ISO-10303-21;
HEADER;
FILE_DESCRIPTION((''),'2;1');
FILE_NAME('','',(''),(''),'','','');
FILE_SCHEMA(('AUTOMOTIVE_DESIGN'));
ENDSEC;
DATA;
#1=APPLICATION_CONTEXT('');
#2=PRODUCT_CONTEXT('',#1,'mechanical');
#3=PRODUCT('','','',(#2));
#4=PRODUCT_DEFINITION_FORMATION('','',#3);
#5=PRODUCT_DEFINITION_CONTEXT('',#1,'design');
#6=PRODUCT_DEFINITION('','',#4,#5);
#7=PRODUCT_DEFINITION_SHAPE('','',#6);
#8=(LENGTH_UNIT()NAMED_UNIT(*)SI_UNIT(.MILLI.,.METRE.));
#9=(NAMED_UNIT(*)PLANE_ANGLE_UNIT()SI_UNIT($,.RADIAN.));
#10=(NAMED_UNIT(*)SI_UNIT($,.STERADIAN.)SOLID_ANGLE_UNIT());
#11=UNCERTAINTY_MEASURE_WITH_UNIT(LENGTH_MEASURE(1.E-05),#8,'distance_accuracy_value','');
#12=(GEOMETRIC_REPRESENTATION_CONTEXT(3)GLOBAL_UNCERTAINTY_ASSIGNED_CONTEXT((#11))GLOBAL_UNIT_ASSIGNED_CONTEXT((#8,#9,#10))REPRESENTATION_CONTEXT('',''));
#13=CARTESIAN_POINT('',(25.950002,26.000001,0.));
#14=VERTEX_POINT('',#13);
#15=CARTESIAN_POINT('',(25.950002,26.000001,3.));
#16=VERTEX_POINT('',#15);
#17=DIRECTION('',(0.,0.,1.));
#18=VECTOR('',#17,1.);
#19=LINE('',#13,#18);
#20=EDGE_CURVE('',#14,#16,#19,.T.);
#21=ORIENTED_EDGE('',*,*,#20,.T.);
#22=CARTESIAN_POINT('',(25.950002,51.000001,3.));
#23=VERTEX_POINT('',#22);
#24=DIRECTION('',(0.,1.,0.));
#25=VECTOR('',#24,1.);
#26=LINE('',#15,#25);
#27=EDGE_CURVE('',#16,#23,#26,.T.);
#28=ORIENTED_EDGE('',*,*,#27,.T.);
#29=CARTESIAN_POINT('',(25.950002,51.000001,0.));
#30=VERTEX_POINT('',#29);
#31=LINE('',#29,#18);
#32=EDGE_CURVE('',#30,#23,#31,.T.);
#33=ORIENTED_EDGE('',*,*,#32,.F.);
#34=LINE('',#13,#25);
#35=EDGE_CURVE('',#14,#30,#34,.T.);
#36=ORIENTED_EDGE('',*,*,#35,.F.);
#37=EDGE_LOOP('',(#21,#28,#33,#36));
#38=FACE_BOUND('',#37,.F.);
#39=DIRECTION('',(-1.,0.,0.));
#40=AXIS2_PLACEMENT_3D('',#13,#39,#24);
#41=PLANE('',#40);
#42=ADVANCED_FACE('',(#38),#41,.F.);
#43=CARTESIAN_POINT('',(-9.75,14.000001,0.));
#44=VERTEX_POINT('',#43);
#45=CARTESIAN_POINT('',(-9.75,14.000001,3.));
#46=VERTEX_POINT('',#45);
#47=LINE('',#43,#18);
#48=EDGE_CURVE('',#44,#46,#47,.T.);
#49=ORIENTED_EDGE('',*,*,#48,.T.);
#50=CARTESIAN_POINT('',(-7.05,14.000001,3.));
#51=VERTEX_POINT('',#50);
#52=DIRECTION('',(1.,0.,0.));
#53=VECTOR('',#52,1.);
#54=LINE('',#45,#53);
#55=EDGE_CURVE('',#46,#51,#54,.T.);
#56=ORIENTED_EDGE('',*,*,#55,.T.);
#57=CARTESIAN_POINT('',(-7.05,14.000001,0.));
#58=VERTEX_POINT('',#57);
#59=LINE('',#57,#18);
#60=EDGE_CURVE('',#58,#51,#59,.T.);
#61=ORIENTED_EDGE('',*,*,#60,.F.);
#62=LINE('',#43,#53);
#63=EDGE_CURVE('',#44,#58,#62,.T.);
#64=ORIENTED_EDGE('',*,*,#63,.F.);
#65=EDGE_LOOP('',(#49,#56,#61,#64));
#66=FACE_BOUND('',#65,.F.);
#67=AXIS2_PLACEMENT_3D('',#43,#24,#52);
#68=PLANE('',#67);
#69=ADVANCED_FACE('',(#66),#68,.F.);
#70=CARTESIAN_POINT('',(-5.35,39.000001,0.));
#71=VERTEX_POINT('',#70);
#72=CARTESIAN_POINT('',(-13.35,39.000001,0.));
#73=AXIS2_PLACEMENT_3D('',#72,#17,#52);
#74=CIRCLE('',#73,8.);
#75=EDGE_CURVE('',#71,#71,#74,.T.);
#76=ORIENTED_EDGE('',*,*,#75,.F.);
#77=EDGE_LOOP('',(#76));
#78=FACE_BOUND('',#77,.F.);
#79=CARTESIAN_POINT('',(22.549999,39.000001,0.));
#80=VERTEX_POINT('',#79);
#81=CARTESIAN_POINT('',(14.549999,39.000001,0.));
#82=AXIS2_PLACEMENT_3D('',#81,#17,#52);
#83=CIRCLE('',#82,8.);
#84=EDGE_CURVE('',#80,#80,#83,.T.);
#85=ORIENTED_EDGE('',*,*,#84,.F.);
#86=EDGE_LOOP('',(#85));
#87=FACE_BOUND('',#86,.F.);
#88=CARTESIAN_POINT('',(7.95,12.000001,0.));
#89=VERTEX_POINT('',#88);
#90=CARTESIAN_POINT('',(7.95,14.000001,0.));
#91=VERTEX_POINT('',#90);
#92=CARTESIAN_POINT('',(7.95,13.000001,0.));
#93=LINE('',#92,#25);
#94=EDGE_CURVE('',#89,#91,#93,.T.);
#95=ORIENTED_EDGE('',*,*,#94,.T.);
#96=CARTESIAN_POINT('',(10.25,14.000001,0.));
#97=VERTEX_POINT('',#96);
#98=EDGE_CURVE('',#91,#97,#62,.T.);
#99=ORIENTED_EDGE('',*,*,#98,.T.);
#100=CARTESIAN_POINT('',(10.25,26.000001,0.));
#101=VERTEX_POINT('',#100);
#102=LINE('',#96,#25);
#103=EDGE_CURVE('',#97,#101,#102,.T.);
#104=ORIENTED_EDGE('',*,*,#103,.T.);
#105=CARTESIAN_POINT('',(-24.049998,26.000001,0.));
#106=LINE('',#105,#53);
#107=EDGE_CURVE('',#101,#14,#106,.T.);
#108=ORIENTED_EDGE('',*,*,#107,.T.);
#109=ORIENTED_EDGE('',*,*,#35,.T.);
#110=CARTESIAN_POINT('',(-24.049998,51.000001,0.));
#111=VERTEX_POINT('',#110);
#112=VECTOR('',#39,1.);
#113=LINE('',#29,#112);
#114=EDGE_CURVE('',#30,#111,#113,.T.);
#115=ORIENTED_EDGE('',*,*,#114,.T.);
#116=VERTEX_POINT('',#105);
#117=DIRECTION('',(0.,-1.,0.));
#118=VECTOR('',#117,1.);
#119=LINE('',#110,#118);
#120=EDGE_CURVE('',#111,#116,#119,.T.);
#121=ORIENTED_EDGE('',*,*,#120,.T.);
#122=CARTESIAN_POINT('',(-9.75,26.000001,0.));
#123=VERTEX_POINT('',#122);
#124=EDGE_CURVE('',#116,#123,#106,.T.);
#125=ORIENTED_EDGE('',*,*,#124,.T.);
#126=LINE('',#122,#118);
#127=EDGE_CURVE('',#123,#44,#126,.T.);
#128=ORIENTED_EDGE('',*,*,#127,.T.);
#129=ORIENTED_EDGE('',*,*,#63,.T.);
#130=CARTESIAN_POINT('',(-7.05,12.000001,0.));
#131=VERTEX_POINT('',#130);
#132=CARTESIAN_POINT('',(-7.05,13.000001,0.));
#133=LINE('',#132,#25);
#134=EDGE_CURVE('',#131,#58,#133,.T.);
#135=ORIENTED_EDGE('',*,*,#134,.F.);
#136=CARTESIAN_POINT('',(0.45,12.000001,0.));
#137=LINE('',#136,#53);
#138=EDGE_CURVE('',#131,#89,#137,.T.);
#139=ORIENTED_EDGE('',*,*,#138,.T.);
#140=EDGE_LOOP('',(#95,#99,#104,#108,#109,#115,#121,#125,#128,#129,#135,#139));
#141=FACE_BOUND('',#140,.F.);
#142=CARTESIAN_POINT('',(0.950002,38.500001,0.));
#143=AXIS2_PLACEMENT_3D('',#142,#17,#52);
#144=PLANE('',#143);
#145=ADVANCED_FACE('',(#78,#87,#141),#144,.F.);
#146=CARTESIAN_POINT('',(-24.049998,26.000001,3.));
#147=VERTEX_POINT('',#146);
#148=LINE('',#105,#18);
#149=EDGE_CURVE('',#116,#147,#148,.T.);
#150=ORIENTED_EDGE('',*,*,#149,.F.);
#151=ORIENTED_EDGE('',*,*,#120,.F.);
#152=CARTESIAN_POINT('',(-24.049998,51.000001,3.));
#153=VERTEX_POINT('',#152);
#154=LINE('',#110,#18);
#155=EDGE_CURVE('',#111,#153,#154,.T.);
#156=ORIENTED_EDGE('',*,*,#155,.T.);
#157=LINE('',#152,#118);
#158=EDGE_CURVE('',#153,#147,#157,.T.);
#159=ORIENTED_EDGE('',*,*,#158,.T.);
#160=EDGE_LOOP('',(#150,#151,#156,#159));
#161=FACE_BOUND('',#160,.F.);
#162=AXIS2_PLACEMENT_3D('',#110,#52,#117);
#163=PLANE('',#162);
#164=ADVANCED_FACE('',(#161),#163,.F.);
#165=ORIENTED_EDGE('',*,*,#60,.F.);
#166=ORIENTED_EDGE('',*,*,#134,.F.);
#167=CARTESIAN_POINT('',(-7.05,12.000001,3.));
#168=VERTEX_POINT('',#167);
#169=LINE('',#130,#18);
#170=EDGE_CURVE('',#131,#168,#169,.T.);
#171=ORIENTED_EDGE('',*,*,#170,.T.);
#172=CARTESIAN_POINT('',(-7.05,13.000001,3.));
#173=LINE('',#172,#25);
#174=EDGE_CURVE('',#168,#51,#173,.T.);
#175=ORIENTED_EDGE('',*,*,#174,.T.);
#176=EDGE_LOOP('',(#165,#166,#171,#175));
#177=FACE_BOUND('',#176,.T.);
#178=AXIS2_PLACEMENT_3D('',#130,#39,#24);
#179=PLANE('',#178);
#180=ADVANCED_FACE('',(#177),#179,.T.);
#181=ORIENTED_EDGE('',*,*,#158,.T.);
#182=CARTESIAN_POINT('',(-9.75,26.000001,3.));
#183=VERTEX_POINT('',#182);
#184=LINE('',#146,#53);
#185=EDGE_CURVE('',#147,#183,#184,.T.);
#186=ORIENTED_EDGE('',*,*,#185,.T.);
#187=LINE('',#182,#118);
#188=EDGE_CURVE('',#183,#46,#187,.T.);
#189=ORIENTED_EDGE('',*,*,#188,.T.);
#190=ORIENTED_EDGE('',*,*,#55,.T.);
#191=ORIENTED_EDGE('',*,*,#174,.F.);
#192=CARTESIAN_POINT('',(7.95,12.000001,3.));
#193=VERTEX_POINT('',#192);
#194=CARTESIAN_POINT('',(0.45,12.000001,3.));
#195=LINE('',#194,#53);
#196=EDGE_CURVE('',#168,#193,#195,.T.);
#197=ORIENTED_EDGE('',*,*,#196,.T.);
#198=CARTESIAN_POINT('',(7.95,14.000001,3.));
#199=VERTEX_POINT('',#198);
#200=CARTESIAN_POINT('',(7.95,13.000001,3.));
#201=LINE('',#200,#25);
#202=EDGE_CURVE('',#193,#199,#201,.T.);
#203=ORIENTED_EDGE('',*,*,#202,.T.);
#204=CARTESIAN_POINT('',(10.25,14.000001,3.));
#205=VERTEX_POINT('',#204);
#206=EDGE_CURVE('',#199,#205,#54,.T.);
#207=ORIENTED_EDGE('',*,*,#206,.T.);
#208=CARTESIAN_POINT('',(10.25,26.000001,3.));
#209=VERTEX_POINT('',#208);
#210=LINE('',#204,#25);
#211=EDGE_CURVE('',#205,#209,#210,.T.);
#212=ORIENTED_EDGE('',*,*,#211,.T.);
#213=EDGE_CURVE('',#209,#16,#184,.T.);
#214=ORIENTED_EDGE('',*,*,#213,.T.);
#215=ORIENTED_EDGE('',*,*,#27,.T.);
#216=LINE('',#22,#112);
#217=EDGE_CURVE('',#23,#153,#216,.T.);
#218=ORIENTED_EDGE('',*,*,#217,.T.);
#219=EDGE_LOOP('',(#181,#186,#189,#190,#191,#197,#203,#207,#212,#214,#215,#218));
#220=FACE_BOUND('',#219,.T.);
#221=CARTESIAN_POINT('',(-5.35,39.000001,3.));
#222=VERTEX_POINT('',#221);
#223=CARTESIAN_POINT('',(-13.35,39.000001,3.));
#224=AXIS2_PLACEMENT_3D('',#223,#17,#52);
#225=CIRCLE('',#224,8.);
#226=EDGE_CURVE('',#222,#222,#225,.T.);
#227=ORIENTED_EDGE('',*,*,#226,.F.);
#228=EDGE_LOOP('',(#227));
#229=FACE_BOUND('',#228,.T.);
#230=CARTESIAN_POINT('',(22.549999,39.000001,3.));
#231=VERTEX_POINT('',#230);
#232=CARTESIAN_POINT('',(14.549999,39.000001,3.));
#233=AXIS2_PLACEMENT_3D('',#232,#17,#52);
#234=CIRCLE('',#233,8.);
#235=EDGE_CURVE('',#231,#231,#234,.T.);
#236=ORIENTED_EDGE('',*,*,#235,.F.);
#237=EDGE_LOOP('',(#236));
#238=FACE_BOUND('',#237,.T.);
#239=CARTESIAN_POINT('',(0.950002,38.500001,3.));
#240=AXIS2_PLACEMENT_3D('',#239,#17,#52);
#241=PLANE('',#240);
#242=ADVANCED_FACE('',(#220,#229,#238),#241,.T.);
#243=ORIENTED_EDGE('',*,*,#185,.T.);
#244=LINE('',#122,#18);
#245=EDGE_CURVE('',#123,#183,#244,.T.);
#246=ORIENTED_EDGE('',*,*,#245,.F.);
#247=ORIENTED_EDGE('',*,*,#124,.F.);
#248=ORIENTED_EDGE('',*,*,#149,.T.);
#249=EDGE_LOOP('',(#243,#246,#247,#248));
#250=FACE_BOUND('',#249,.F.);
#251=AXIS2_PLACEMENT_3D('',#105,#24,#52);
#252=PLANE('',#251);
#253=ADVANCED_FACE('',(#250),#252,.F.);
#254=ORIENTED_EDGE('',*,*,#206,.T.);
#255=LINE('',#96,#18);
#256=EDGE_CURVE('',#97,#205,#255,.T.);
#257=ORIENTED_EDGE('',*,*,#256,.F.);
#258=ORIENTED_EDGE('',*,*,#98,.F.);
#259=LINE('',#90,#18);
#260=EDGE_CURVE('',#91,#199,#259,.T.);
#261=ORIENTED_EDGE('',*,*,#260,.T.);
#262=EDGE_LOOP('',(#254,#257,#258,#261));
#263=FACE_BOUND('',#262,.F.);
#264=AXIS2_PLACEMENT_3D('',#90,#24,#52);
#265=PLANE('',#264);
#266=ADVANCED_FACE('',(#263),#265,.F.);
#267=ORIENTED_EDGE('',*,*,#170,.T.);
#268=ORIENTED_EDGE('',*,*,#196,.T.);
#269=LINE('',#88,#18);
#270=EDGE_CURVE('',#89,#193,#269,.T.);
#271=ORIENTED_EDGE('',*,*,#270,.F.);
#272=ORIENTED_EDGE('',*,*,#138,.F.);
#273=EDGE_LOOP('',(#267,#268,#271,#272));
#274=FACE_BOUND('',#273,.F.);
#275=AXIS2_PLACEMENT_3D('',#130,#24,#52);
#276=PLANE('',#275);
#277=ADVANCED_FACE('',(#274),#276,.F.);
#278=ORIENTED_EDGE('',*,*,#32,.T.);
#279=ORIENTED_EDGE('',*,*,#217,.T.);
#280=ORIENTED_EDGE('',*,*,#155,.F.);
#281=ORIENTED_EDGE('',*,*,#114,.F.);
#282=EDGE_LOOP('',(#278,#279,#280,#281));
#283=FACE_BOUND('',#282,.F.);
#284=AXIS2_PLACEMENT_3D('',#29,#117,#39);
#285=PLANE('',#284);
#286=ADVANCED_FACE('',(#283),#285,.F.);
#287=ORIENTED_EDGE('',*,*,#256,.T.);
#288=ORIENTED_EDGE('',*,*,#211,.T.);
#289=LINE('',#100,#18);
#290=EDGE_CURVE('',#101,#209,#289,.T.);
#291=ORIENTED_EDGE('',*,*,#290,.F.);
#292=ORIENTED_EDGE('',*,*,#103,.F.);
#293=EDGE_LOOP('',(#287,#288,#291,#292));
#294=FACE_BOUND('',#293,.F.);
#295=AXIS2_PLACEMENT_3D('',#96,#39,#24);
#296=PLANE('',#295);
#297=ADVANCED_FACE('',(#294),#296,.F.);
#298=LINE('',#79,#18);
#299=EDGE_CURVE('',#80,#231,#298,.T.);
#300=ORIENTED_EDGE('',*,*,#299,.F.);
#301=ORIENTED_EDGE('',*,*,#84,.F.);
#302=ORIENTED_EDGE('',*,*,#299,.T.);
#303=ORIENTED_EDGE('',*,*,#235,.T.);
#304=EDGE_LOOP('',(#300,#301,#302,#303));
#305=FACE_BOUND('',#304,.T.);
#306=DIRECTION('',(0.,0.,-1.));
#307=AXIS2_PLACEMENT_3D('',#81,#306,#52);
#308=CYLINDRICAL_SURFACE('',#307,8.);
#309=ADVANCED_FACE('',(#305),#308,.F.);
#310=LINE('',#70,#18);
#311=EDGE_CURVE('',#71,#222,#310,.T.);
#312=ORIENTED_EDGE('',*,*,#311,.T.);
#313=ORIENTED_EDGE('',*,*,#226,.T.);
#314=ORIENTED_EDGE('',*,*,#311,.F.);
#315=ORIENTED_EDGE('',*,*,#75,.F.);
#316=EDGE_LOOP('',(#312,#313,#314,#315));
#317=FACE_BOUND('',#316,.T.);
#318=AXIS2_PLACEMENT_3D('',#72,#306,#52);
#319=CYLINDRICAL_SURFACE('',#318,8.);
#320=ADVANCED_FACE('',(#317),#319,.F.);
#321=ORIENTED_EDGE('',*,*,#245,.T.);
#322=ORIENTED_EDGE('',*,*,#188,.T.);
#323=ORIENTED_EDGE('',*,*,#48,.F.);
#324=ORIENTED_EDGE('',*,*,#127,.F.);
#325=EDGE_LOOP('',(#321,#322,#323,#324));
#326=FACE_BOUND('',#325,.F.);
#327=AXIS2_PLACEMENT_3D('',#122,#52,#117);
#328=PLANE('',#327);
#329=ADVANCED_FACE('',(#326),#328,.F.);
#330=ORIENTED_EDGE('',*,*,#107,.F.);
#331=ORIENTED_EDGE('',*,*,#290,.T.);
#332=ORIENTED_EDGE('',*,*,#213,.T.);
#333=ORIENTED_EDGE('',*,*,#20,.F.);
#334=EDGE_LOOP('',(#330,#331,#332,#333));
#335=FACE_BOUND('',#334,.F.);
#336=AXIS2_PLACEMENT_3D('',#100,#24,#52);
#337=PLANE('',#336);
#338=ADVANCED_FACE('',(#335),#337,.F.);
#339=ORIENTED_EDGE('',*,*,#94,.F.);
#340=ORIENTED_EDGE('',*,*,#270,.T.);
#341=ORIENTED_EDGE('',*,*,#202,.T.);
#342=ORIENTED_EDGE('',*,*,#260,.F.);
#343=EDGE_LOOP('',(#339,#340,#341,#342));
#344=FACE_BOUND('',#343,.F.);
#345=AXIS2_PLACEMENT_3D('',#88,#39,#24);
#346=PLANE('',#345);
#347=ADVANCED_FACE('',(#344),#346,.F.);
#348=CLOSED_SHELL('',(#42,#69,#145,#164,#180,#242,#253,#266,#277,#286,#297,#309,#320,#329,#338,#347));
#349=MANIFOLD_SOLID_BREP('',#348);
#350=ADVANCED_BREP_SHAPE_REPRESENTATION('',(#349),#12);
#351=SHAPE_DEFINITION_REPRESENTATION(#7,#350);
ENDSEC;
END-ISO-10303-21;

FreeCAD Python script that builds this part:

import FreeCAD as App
import Part
import Sketcher
Q = App.Units.Quantity

doc = App.newDocument("Part")
body = doc.addObject("PartDesign::Body", "Body")

sketch1 = doc.addObject("Sketcher::SketchObject", "Sketch")
body.addObject(sketch1)
sketch1.AttachmentSupport = (doc.XY_Plane, [""])
sketch1.MapMode = "FlatFace"
sketch1.addGeometry([
    Part.LineSegment(App.Vector(25.950002, 51.000001, 0), App.Vector(-24.049998, 51.000001, 0)),
    Part.LineSegment(App.Vector(-24.049998, 51.000001, 0), App.Vector(-24.049998, 26.000001, 0)),
    Part.LineSegment(App.Vector(-24.049998, 26.000001, 0), App.Vector(-9.75, 26.000001, 0)),
    Part.LineSegment(App.Vector(-9.75, 26.000001, 0), App.Vector(-9.75, 14.000001, 0)),
    Part.LineSegment(App.Vector(-9.75, 14.000001, 0), App.Vector(-7.05, 14.000001, 0)),
    Part.LineSegment(App.Vector(-7.05, 14.000001, 0), App.Vector(-7.05, 12.000001, 0)),
    Part.LineSegment(App.Vector(-7.05, 12.000001, 0), App.Vector(7.95, 12.000001, 0)),
    Part.LineSegment(App.Vector(7.95, 12.000001, 0), App.Vector(7.95, 14.000001, 0)),
    Part.LineSegment(App.Vector(7.95, 14.000001, 0), App.Vector(10.25, 14.000001, 0)),
    Part.LineSegment(App.Vector(10.25, 14.000001, 0), App.Vector(10.25, 26.000001, 0)),
    Part.LineSegment(App.Vector(10.25, 26.000001, 0), App.Vector(25.950002, 26.000001, 0)),
    Part.LineSegment(App.Vector(25.950002, 26.000001, 0), App.Vector(25.950002, 51.000001, 0)),
    Part.Circle(App.Vector(-13.35, 39.000001, 0), App.Vector(0, 0, 1), 8),
    Part.Circle(App.Vector(14.549999, 39.000001, 0), App.Vector(0, 0, 1), 8),
], False)
sketch1.addConstraint([
    Sketcher.Constraint("Coincident", 0, 2, 1, 1),
    Sketcher.Constraint("Coincident", 1, 2, 2, 1),
    Sketcher.Constraint("Coincident", 2, 2, 3, 1),
    Sketcher.Constraint("Coincident", 3, 2, 4, 1),
    Sketcher.Constraint("Coincident", 4, 2, 5, 1),
    Sketcher.Constraint("Coincident", 5, 2, 6, 1),
    Sketcher.Constraint("Coincident", 6, 2, 7, 1),
    Sketcher.Constraint("Coincident", 7, 2, 8, 1),
    Sketcher.Constraint("Coincident", 8, 2, 9, 1),
    Sketcher.Constraint("Coincident", 9, 2, 10, 1),
    Sketcher.Constraint("Coincident", 10, 2, 11, 1),
    Sketcher.Constraint("Coincident", 11, 2, 0, 1),
    Sketcher.Constraint("Horizontal", 0),
    Sketcher.Constraint("Vertical", 1),
    Sketcher.Constraint("Horizontal", 2),
    Sketcher.Constraint("Vertical", 3),
    Sketcher.Constraint("Horizontal", 4),
    Sketcher.Constraint("Vertical", 5),
    Sketcher.Constraint("Horizontal", 6),
    Sketcher.Constraint("Vertical", 7),
    Sketcher.Constraint("Horizontal", 8),
    Sketcher.Constraint("Vertical", 9),
    Sketcher.Constraint("Horizontal", 10),
    Sketcher.Constraint("Vertical", 11),
    Sketcher.Constraint("Equal", 12, 13),
    Sketcher.Constraint("Horizontal", 12, 3, 13, 3),
    Sketcher.Constraint("Horizontal", 4, 2, 7, 2),
    Sketcher.Constraint("Horizontal", 2, 2, 9, 2),
    Sketcher.Constraint("Diameter", 12, Q("16 mm")),
    Sketcher.Constraint("DistanceX", 0, 2, 0, 1, Q("50 mm")),
    Sketcher.Constraint("DistanceX", 6, 1, 6, 2, Q("15 mm")),
    Sketcher.Constraint("DistanceY", 1, 2, 1, 1, Q("25 mm")),
    Sketcher.Constraint("DistanceY", 3, 2, 3, 1, Q("12 mm")),
    Sketcher.Constraint("DistanceY", 5, 2, 5, 1, Q("2 mm")),
    Sketcher.Constraint("DistanceX", 4, 1, 4, 2, Q("2.7 mm")),
    Sketcher.Constraint("DistanceX", 8, 1, 8, 2, Q("2.3 mm")),
    Sketcher.Constraint("DistanceY", -1, 1, 12, 3, Q("39.000001 mm")),
    Sketcher.Constraint("DistanceY", -1, 1, 0, 2, Q("51.000001 mm")),
    Sketcher.Constraint("DistanceX", 12, 3, 13, 3, Q("27.899999 mm")),
    Sketcher.Constraint("DistanceX", 12, 3, 2, 2, Q("3.6 mm")),
    Sketcher.Constraint("DistanceX", 12, 3, -1, 1, Q("13.35 mm")),
    Sketcher.Constraint("DistanceX", 2, 1, 2, 2, Q("14.299998 mm")),
])
pad1 = doc.addObject("PartDesign::Pad", "Pad")
body.addObject(pad1)
pad1.Profile = sketch1
pad1.Length = 3

doc.recompute()
